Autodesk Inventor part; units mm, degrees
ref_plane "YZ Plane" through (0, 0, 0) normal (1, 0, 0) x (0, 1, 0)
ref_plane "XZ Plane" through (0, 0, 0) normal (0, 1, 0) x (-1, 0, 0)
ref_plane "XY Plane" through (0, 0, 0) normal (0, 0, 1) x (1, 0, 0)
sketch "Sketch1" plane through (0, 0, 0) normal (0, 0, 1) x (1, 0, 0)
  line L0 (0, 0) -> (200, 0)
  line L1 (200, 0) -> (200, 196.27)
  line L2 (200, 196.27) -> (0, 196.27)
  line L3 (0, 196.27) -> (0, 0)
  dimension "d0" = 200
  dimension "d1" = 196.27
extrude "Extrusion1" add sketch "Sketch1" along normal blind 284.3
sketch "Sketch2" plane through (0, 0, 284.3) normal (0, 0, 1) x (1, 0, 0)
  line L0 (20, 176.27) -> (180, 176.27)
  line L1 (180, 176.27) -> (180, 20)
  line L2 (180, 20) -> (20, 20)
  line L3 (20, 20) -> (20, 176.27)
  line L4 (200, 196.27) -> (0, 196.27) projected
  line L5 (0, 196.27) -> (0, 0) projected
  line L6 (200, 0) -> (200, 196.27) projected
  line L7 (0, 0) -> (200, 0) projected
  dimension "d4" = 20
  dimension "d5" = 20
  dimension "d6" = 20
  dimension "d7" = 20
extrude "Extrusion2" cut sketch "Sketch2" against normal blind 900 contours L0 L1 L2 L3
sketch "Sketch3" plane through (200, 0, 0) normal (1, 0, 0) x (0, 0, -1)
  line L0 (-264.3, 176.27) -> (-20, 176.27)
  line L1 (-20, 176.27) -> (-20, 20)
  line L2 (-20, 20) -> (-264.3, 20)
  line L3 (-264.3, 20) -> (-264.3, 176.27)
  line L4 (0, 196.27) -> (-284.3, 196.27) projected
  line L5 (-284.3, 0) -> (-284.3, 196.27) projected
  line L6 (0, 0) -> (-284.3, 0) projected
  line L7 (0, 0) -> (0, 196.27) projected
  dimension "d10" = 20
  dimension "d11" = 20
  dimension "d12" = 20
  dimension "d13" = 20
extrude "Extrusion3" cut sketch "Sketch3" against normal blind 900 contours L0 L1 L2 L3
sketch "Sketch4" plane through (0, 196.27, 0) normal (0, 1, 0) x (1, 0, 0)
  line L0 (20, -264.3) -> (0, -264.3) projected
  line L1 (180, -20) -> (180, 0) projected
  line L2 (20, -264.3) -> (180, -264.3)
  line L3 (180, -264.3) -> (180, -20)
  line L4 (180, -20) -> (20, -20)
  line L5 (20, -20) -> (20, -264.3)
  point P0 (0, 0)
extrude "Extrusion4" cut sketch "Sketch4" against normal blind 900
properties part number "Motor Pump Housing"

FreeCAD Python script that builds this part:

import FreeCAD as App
import Part
import Sketcher
from FreeCAD import Vector


def add_polygon(sketch, points):
    """Adds a closed chain of lines whose ends are joined by coincident constraints."""
    first, n = sketch.GeometryCount, len(points)
    for a, b in zip(points, points[1:] + points[:1]):
        sketch.addGeometry(Part.LineSegment(App.Vector(*a, 0), App.Vector(*b, 0)), False)
    for i in range(n):
        sketch.addConstraint(Sketcher.Constraint("Coincident", first + i, 2, first + (i + 1) % n, 1))

doc = App.newDocument("Part")
body = doc.addObject("PartDesign::Body", "Body")

# Sketch on XY plane
sketch1 = body.newObject("Sketcher::SketchObject", "Sketch")
sketch1.AttachmentSupport = (doc.getObject("XY_Plane"), [""])
sketch1.MapMode = "FlatFace"
add_polygon(sketch1, [(0, 196), (0, 0), (200, 0), (200, 196)])  # lines 0-3
sketch1.addConstraint(Sketcher.Constraint("Vertical", 0))
sketch1.addConstraint(Sketcher.Constraint("Horizontal", 1))
sketch1.addConstraint(Sketcher.Constraint("Vertical", 2))
sketch1.addConstraint(Sketcher.Constraint("Horizontal", 3))
sketch1.addConstraint(Sketcher.Constraint("Coincident", 0, 2, -1, 1))
sketch1.addConstraint(Sketcher.Constraint("DistanceX", 1, 1, 1, 2, 200.0))
sketch1.addConstraint(Sketcher.Constraint("DistanceY", 0, 2, 0, 1, 196.27))
pad1 = body.newObject("PartDesign::Pad", "Pad")
pad1.Profile = sketch1
pad1.Length = 284.3

# Sketch on XY plane
sketch2 = body.newObject("Sketcher::SketchObject", "Sketch001")
sketch2.AttachmentSupport = (doc.getObject("XY_Plane"), [""])
sketch2.MapMode = "FlatFace"
sketch2.AttachmentOffset = App.Placement(Vector(0, 0, 284.3), App.Rotation())
add_polygon(sketch2, [(180, 176), (20, 176), (20, 20), (180, 20)])  # lines 0-3
sketch2.addConstraint(Sketcher.Constraint("Horizontal", 0))
sketch2.addConstraint(Sketcher.Constraint("Vertical", 1))
sketch2.addConstraint(Sketcher.Constraint("Horizontal", 2))
sketch2.addConstraint(Sketcher.Constraint("Vertical", 3))
sketch2.addConstraint(Sketcher.Constraint("DistanceX", -1, 1, 0, 2, 20.0))
sketch2.addConstraint(Sketcher.Constraint("DistanceY", -1, 1, 1, 2, 20.0))
sketch2.addConstraint(Sketcher.Constraint("DistanceX", 0, 2, 0, 1, 160.0))
sketch2.addConstraint(Sketcher.Constraint("DistanceY", 1, 2, 1, 1, 156.27))
pocket1 = body.newObject("PartDesign::Pocket", "Pocket")
pocket1.Profile = sketch2
pocket1.Length = 900

# Sketch on YZ plane
sketch3 = body.newObject("Sketcher::SketchObject", "Sketch002")
sketch3.AttachmentSupport = (doc.getObject("YZ_Plane"), [""])
sketch3.MapMode = "FlatFace"
sketch3.AttachmentOffset = App.Placement(Vector(0, 0, 200), App.Rotation())
add_polygon(sketch3, [(176, 20), (176, 264), (20, 264), (20, 20)])  # lines 0-3
sketch3.addConstraint(Sketcher.Constraint("Vertical", 0))
sketch3.addConstraint(Sketcher.Constraint("Horizontal", 1))
sketch3.addConstraint(Sketcher.Constraint("Vertical", 2))
sketch3.addConstraint(Sketcher.Constraint("Horizontal", 3))
sketch3.addConstraint(Sketcher.Constraint("DistanceX", -1, 1, 1, 2, 20.0))
sketch3.addConstraint(Sketcher.Constraint("DistanceY", -1, 1, 2, 2, 20.0))
sketch3.addConstraint(Sketcher.Constraint("DistanceY", 0, 1, 0, 2, 244.3))
sketch3.addConstraint(Sketcher.Constraint("DistanceX", 1, 2, 1, 1, 156.27))
pocket2 = body.newObject("PartDesign::Pocket", "Pocket001")
pocket2.Profile = sketch3
pocket2.Length = 900

# Sketch on XZ plane
sketch4 = body.newObject("Sketcher::SketchObject", "Sketch003")
sketch4.AttachmentSupport = (doc.getObject("XZ_Plane"), [""])
sketch4.MapMode = "FlatFace"
sketch4.AttachmentOffset = App.Placement(Vector(0, 0, -196.27), App.Rotation())
add_polygon(sketch4, [(20, 20), (20, 264), (180, 264), (180, 20)])  # lines 0-3
sketch4.addConstraint(Sketcher.Constraint("Vertical", 0))
sketch4.addConstraint(Sketcher.Constraint("Horizontal", 1))
sketch4.addConstraint(Sketcher.Constraint("Vertical", 2))
sketch4.addConstraint(Sketcher.Constraint("Horizontal", 3))
sketch4.addConstraint(Sketcher.Constraint("DistanceX", 1, 1, 1, 2, 160.0))
sketch4.addConstraint(Sketcher.Constraint("DistanceY", 0, 1, 0, 2, 244.3))
sketch4.addConstraint(Sketcher.Constraint("DistanceX", -1, 1, 0, 2, 20.0))
sketch4.addConstraint(Sketcher.Constraint("DistanceY", -1, 1, 2, 2, 20.0))
pocket3 = body.newObject("PartDesign::Pocket", "Pocket002")
pocket3.Profile = sketch4
pocket3.Length = 900
pocket3.Reversed = True

doc.recompute()
